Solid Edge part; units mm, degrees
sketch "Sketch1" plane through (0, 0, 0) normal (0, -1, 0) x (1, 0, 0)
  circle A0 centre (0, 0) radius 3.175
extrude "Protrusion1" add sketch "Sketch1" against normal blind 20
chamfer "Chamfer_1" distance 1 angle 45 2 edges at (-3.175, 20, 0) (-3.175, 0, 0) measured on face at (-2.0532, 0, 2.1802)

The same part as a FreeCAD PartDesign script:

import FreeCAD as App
import Part
import Sketcher
from FreeCAD import Vector
Q = App.Units.Quantity


def edges_at(feature, points):
    """Names of the edges that pass closest to the given points."""
    edges = feature.Shape.Edges
    near = lambda p: min(range(len(edges)), key=lambda i: edges[i].distToShape(Part.Vertex(*p))[0])
    return sorted({f"Edge{near(p) + 1}" for p in points})

doc = App.newDocument("Part")
body = doc.addObject("PartDesign::Body", "Body")

# Sketch on XZ plane
sketch1 = body.newObject("Sketcher::SketchObject", "Sketch")
sketch1.AttachmentSupport = (doc.getObject("XZ_Plane"), [""])
sketch1.MapMode = "FlatFace"
sketch1.addGeometry(Part.Circle(Vector(0, 0, 0), Vector(0, 0, 1), 3.2), False)
sketch1.addConstraint(Sketcher.Constraint("Coincident", 0, 3, -1, 1))
sketch1.addConstraint(Sketcher.Constraint("Diameter", 0, Q("6.35 mm")))
pad1 = body.newObject("PartDesign::Pad", "Pad")
pad1.Profile = sketch1
pad1.Length = 20
pad1.Reversed = True
doc.recompute()

chamfer = body.newObject("PartDesign::Chamfer", "Chamfer")
chamfer.Base = (pad1, edges_at(pad1, [(-3.175, 20, 0), (-3.175, 0, 0)]))
chamfer.Size = 1

doc.recompute()
